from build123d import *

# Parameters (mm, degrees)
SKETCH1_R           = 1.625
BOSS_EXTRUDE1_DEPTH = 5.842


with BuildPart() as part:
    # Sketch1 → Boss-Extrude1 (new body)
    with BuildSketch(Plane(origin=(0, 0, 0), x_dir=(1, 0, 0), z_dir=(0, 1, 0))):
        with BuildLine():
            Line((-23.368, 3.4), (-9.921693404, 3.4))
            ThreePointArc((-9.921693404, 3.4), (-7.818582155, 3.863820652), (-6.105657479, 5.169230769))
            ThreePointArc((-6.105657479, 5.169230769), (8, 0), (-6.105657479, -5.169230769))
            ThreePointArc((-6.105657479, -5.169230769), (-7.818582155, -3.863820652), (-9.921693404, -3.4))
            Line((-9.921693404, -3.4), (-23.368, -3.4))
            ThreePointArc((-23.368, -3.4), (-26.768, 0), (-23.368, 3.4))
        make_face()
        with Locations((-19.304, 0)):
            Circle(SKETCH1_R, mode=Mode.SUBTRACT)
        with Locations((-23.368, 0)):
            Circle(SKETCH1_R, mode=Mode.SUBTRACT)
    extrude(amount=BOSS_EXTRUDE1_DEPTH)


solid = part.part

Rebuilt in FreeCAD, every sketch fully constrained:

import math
import FreeCAD as App
import Part
import Sketcher
from FreeCAD import Vector

doc = App.newDocument("Part")
params = doc.addObject("Spreadsheet::Sheet", "Params")
for row, (alias, value) in enumerate([
    ("sketch1_radius", "5 mm"),
    ("sketch1_radius2", "8 mm"),
    ("sketch1_radius3", "3.4 mm"),
    ("sketch1_diameter", "3.25 mm"),
    ("pad1_length", "5.842 mm"),
], start=1):
    params.set(f"A{row}", alias)
    params.set(f"B{row}", "=" + value)
    params.setAlias(f"B{row}", alias)

body = doc.addObject("PartDesign::Body", "Body")

sketch1 = body.newObject("Sketcher::SketchObject", "Sketch")
sketch1.AttachmentSupport = (doc.getObject("XZ_Plane"), [""])
sketch1.MapMode = "FlatFace"
sketch1.addGeometry([
    Part.LineSegment(Vector(-9.9, -3.4, 0), Vector(-23.4, -3.4, 0)),
    Part.ArcOfCircle(Part.Circle(Vector(-23.4, 0, 0), Vector(0, 0, 1), 3.4), math.radians(90), math.radians(270)),
    Part.LineSegment(Vector(-23.4, 3.4, 0), Vector(-9.9, 3.4, 0)),
    Part.ArcOfCircle(Part.Circle(Vector(-9.9, 8.4, 0), Vector(0, 0, 1), 5), math.radians(-90), math.radians(-40)),
    Part.ArcOfCircle(Part.Circle(Vector(0, 0, 0), Vector(0, 0, 1), 8), math.radians(-140), math.radians(140)),
    Part.ArcOfCircle(Part.Circle(Vector(-9.9, -8.4, 0), Vector(0, 0, 1), 5), math.radians(40), math.radians(90)),
    Part.Circle(Vector(-19.3, 0, 0), Vector(0, 0, 1), 1.6),
    Part.Circle(Vector(-23.4, 0, 0), Vector(0, 0, 1), 1.6),
], False)
sketch1.addConstraint([
    Sketcher.Constraint("Tangent", 0, 2, 1, 2),
    Sketcher.Constraint("Tangent", 1, 1, 2, 1),
    Sketcher.Constraint("Tangent", 2, 2, 3, 1),
    Sketcher.Constraint("Tangent", 3, 2, 4, 2),
    Sketcher.Constraint("Tangent", 4, 1, 5, 1),
    Sketcher.Constraint("Tangent", 5, 2, 0, 1),
    Sketcher.Constraint("Horizontal", 0),
    Sketcher.Constraint("Horizontal", 2),
    Sketcher.Constraint("Coincident", 4, 3, -1, 1),
    Sketcher.Constraint("Coincident", 7, 3, 1, 3),
    Sketcher.Constraint("Equal", 3, 5),
    Sketcher.Constraint("Equal", 6, 7),
    Sketcher.Constraint("PointOnObject", 1, 3, -1),
    Sketcher.Constraint("PointOnObject", 6, 3, -1),
    Sketcher.Constraint("Radius", 3, 5.0),
    Sketcher.Constraint("Radius", 4, 8.0),
    Sketcher.Constraint("Radius", 1, 3.4),
    Sketcher.Constraint("Diameter", 6, 3.25),
    Sketcher.Constraint("DistanceX", 1, 3, -1, 1, 23.368),
    Sketcher.Constraint("DistanceX", 6, 3, -1, 1, 19.304),
])
sketch1.setExpression("Constraints[14]", "Params.sketch1_radius")
sketch1.setExpression("Constraints[15]", "Params.sketch1_radius2")
sketch1.setExpression("Constraints[16]", "Params.sketch1_radius3")
sketch1.setExpression("Constraints[17]", "Params.sketch1_diameter")
pad1 = body.newObject("PartDesign::Pad", "Pad")
pad1.Profile = sketch1
pad1.setExpression("Length", "Params.pad1_length")
pad1.Reversed = True

doc.recompute()
